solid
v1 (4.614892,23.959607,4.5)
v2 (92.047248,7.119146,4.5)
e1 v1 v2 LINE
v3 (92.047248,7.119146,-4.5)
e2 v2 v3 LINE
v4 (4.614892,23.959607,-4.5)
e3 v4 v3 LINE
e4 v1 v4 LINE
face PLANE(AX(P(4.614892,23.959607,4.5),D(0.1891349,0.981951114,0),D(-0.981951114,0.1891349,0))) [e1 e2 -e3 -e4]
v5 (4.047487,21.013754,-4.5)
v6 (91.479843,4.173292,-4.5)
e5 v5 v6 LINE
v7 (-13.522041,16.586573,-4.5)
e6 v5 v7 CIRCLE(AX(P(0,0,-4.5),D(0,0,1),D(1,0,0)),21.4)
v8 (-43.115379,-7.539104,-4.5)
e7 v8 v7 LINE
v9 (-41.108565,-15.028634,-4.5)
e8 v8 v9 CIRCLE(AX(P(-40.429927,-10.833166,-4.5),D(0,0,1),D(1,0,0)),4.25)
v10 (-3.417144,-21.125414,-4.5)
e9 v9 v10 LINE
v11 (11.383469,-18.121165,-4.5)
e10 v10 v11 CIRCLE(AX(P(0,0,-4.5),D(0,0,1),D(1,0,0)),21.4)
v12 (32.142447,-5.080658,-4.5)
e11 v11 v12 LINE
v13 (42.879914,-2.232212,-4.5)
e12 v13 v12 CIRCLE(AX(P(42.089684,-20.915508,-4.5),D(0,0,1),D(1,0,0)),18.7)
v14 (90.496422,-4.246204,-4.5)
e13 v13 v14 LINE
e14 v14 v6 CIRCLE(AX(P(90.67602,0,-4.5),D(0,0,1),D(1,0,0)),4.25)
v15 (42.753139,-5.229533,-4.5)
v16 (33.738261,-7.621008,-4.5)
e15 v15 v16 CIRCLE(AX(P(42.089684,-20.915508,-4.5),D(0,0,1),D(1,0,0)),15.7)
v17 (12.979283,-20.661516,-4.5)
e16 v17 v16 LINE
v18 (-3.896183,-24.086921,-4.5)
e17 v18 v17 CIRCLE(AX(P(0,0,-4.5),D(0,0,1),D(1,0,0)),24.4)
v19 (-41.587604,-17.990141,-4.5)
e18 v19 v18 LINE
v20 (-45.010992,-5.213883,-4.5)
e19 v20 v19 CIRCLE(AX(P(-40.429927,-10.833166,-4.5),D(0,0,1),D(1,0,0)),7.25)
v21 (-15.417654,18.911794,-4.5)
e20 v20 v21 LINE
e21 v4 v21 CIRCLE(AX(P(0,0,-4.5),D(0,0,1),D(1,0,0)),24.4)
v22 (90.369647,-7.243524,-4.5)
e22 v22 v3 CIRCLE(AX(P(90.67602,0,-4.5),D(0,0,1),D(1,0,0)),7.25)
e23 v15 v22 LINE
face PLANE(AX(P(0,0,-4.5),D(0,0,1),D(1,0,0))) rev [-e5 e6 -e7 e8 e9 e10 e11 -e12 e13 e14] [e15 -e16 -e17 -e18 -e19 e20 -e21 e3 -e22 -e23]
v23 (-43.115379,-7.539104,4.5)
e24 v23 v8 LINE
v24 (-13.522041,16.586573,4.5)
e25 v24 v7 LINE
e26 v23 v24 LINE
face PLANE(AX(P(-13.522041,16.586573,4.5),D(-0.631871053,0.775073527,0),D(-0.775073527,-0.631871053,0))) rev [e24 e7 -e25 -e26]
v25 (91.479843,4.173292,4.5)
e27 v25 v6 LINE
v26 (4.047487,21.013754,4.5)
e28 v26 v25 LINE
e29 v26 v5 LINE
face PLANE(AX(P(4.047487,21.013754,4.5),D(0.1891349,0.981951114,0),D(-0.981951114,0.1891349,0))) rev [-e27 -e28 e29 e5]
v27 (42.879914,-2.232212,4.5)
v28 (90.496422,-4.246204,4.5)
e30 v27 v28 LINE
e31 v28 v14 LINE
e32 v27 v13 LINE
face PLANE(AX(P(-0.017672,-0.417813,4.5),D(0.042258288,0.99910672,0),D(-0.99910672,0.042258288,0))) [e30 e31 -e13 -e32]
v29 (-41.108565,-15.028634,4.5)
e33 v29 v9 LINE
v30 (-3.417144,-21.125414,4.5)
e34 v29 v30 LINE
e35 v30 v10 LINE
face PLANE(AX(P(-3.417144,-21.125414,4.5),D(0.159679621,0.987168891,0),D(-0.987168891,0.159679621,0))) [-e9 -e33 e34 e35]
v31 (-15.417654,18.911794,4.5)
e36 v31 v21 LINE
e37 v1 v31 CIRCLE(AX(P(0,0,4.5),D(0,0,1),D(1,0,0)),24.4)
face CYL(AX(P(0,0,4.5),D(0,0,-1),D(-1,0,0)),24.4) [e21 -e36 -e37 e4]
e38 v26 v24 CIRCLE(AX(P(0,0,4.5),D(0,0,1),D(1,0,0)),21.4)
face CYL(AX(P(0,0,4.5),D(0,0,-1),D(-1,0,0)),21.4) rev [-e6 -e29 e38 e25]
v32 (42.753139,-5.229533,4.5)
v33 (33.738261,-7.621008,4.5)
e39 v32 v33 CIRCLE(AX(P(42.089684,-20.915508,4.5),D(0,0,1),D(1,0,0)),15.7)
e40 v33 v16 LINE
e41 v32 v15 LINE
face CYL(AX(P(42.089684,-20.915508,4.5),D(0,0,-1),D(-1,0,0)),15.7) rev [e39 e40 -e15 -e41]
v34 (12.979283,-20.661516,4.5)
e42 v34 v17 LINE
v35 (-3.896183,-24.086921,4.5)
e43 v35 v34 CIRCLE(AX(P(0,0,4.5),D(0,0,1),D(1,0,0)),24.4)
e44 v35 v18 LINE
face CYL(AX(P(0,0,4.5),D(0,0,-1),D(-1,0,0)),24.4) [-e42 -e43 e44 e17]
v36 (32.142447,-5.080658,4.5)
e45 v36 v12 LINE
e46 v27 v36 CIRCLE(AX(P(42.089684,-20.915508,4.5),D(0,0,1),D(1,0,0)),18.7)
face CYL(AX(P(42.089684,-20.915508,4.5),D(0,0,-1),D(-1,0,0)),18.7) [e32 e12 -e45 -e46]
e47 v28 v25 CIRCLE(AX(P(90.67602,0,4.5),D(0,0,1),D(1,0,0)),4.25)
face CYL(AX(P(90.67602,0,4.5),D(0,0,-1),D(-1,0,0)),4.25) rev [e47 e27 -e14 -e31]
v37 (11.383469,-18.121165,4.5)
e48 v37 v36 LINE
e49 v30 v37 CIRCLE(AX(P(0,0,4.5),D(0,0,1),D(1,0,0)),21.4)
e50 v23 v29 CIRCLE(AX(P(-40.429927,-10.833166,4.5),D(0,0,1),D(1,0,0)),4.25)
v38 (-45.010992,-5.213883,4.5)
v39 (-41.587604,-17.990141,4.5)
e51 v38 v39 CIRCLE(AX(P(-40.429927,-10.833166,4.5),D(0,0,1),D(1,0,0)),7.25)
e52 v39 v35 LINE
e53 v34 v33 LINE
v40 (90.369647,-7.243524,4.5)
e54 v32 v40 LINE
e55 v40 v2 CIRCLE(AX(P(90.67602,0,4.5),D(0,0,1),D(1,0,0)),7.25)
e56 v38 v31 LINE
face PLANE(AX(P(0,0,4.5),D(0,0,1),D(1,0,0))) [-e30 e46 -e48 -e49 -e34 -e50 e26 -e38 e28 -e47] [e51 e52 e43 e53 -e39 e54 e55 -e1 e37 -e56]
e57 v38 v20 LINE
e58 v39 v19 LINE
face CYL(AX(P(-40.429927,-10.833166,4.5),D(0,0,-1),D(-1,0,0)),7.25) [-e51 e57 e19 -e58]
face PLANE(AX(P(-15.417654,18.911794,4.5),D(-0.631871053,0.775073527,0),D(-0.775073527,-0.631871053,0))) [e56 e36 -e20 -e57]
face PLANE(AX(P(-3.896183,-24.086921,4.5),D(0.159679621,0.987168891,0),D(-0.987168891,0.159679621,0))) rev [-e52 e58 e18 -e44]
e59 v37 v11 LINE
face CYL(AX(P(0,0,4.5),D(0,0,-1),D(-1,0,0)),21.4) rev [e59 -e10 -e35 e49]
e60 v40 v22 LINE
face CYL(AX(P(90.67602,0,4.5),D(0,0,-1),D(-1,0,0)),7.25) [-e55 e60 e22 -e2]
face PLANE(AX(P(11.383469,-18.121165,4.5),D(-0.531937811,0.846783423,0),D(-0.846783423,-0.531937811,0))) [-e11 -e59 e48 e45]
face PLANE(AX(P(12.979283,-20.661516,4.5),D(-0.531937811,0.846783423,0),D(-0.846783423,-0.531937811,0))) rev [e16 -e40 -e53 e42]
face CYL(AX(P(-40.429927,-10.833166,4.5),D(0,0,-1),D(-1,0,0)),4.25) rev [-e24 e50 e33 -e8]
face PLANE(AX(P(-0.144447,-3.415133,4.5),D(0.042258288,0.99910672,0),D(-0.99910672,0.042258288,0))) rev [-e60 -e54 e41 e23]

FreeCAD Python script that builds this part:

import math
import FreeCAD as App
import Part
import Sketcher

V = App.Vector

doc = App.newDocument("Part")
body = doc.addObject("PartDesign::Body", "Body")

sketch1 = doc.addObject("Sketcher::SketchObject", "Sketch")
body.addObject(sketch1)
sketch1.AttachmentSupport = (doc.XY_Plane, [""])
sketch1.MapMode = "FlatFace"
sketch1.addGeometry([
    Part.ArcOfCircle(Part.Circle(V(90.7, 0, 0), V(0, 0, 1), 7.2), math.radians(-92), math.radians(79)),
    Part.LineSegment(V(92, 7.1, 0), V(4.6, 24, 0)),
    Part.ArcOfCircle(Part.Circle(V(0, 0, 0), V(0, 0, 1), 24.4), math.radians(79), math.radians(129)),
    Part.LineSegment(V(-15.4, 18.9, 0), V(-45, -5.2, 0)),
    Part.ArcOfCircle(Part.Circle(V(-40.4, -10.8, 0), V(0, 0, 1), 7.2), math.radians(129), math.radians(261)),
    Part.LineSegment(V(-41.6, -18, 0), V(-3.9, -24.1, 0)),
    Part.ArcOfCircle(Part.Circle(V(0, 0, 0), V(0, 0, 1), 24.4), math.radians(-99), math.radians(-58)),
    Part.LineSegment(V(13, -20.7, 0), V(33.7, -7.6, 0)),
    Part.ArcOfCircle(Part.Circle(V(42.1, -20.9, 0), V(0, 0, 1), 15.7), math.radians(88), math.radians(122)),
    Part.LineSegment(V(42.8, -5.2, 0), V(90.4, -7.2, 0)),
    Part.LineSegment(V(-43.1, -7.5, 0), V(-13.5, 16.6, 0)),
    Part.ArcOfCircle(Part.Circle(V(0, 0, 0), V(0, 0, 1), 21.4), math.radians(79), math.radians(129)),
    Part.LineSegment(V(4, 21, 0), V(91.5, 4.2, 0)),
    Part.ArcOfCircle(Part.Circle(V(90.7, 0, 0), V(0, 0, 1), 4.2), math.radians(-92), math.radians(79)),
    Part.LineSegment(V(90.5, -4.2, 0), V(42.9, -2.2, 0)),
    Part.ArcOfCircle(Part.Circle(V(42.1, -20.9, 0), V(0, 0, 1), 18.7), math.radians(88), math.radians(122)),
    Part.LineSegment(V(32.1, -5.1, 0), V(11.4, -18.1, 0)),
    Part.ArcOfCircle(Part.Circle(V(0, 0, 0), V(0, 0, 1), 21.4), math.radians(-99), math.radians(-58)),
    Part.LineSegment(V(-3.4, -21.1, 0), V(-41.1, -15, 0)),
    Part.ArcOfCircle(Part.Circle(V(-40.4, -10.8, 0), V(0, 0, 1), 4.2), math.radians(129), math.radians(261)),
], False)
sketch1.addConstraint([
    Sketcher.Constraint("Tangent", 0, 2, 1, 1),
    Sketcher.Constraint("Tangent", 1, 2, 2, 1),
    Sketcher.Constraint("Tangent", 2, 2, 3, 1),
    Sketcher.Constraint("Tangent", 3, 2, 4, 1),
    Sketcher.Constraint("Tangent", 4, 2, 5, 1),
    Sketcher.Constraint("Tangent", 5, 2, 6, 1),
    Sketcher.Constraint("Tangent", 6, 2, 7, 1),
    Sketcher.Constraint("Tangent", 7, 2, 8, 2),
    Sketcher.Constraint("Tangent", 8, 1, 9, 1),
    Sketcher.Constraint("Tangent", 9, 2, 0, 1),
    Sketcher.Constraint("Tangent", 10, 2, 11, 2),
    Sketcher.Constraint("Tangent", 11, 1, 12, 1),
    Sketcher.Constraint("Tangent", 12, 2, 13, 2),
    Sketcher.Constraint("Tangent", 13, 1, 14, 1),
    Sketcher.Constraint("Tangent", 14, 2, 15, 1),
    Sketcher.Constraint("Tangent", 15, 2, 16, 1),
    Sketcher.Constraint("Tangent", 16, 2, 17, 2),
    Sketcher.Constraint("Tangent", 17, 1, 18, 1),
    Sketcher.Constraint("Tangent", 18, 2, 19, 2),
    Sketcher.Constraint("Tangent", 19, 1, 10, 1),
    Sketcher.Constraint("Coincident", 2, 3, -1, 1),
    Sketcher.Constraint("Coincident", 6, 3, -1, 1),
    Sketcher.Constraint("Coincident", 11, 3, -1, 1),
    Sketcher.Constraint("Coincident", 17, 3, -1, 1),
    Sketcher.Constraint("Coincident", 13, 3, 0, 3),
    Sketcher.Constraint("Coincident", 15, 3, 8, 3),
    Sketcher.Constraint("Coincident", 19, 3, 4, 3),
    Sketcher.Constraint("Equal", 0, 4),
    Sketcher.Constraint("Equal", 2, 6),
    Sketcher.Constraint("Equal", 11, 17),
    Sketcher.Constraint("Equal", 13, 19),
    Sketcher.Constraint("PointOnObject", 0, 3, -1),
    Sketcher.Constraint("Parallel", 3, 10),
    Sketcher.Constraint("Parallel", 9, 14),
    Sketcher.Constraint("Radius", 2, 24.4),
    Sketcher.Constraint("Radius", 8, 15.7),
    Sketcher.Constraint("Radius", 11, 21.4),
    Sketcher.Constraint("Radius", 0, 7.25),
    Sketcher.Constraint("DistanceY", 15, 3, 7, 2, 13.2945),
    Sketcher.Constraint("DistanceX", 9, 2, 0, 2, 1.677601),
    Sketcher.Constraint("DistanceY", 17, 1, 6, 2, 0.463899),
    Sketcher.Constraint("Distance", 1, 89.039419),
    Sketcher.Constraint("Distance", 3, 38.18133),
])
pad1 = doc.addObject("PartDesign::Pad", "Pad")
body.addObject(pad1)
pad1.Profile = sketch1
pad1.Length = 9
pad1.Midplane = True

doc.recompute()
